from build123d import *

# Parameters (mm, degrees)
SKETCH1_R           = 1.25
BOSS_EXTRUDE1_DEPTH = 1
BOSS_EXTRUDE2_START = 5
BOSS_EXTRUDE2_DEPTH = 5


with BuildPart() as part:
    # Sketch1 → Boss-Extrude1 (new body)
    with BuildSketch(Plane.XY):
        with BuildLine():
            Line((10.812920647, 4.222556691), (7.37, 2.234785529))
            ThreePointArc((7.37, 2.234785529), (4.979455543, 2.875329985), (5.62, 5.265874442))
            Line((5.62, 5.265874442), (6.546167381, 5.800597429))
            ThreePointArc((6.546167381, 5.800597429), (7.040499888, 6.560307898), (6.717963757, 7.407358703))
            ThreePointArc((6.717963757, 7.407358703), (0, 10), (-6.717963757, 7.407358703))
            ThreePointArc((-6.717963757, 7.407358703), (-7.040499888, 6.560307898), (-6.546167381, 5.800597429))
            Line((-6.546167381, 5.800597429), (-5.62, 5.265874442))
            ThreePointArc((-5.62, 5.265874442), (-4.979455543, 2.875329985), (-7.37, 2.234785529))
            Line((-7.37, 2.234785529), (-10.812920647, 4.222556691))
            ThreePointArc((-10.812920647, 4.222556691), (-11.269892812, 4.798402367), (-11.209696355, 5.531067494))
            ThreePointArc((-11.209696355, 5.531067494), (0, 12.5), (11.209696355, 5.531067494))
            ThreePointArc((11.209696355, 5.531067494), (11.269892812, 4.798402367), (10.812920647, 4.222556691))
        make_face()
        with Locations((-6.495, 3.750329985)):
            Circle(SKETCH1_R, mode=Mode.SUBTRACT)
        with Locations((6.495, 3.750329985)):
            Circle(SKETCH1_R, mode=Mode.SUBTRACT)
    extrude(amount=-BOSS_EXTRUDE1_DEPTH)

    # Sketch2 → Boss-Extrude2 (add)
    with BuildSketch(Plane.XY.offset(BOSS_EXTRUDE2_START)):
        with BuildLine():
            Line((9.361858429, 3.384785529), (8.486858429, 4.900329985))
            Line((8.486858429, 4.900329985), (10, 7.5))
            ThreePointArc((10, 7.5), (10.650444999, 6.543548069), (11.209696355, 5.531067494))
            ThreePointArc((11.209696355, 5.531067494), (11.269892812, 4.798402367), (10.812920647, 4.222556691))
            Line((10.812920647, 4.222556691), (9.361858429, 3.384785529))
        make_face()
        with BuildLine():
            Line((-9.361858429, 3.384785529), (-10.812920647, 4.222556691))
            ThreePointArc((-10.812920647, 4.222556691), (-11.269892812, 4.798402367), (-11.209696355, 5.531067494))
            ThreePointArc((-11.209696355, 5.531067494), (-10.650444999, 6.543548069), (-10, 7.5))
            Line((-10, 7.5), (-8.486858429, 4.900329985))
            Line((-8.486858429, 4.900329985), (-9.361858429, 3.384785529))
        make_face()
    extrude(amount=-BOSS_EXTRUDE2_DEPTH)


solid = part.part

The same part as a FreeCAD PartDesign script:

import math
import FreeCAD as App
import Part
import Sketcher
from FreeCAD import Vector
Q = App.Units.Quantity

doc = App.newDocument("Part")
body = doc.addObject("PartDesign::Body", "Body")

sketch1 = body.newObject("Sketcher::SketchObject", "Sketch")
sketch1.AttachmentSupport = (doc.getObject("XY_Plane"), [""])
sketch1.MapMode = "FlatFace"
sketch1.addGeometry(Part.LineSegment(Vector(7.4, 2.2, 0), Vector(10.8, 4.2, 0)), False)
sketch1.addGeometry(Part.ArcOfCircle(Part.Circle(Vector(10.3, 5.1, 0), Vector(0, 0, 1), 1), math.radians(-60), math.radians(26)), False)
sketch1.addGeometry(Part.ArcOfCircle(Part.Circle(Vector(0, 0, 0), Vector(0, 0, 1), 12.5), math.radians(26), math.radians(154)), False)
sketch1.addGeometry(Part.ArcOfCircle(Part.Circle(Vector(-10.3, 5.1, 0), Vector(0, 0, 1), 1), math.radians(154), math.radians(240)), False)
sketch1.addGeometry(Part.LineSegment(Vector(-10.8, 4.2, 0), Vector(-7.4, 2.2, 0)), False)
sketch1.addGeometry(Part.ArcOfCircle(Part.Circle(Vector(-6.5, 3.8, 0), Vector(0, 0, 1), 1.8), math.radians(-120), math.radians(60)), False)
sketch1.addGeometry(Part.LineSegment(Vector(-5.6, 5.3, 0), Vector(-6.5, 5.8, 0)), False)
sketch1.addGeometry(Part.ArcOfCircle(Part.Circle(Vector(-6, 6.7, 0), Vector(0, 0, 1), 1), math.radians(132), math.radians(240)), False)
sketch1.addGeometry(Part.ArcOfCircle(Part.Circle(Vector(0, 0, 0), Vector(0, 0, 1), 10), math.radians(48), math.radians(132)), False)
sketch1.addGeometry(Part.ArcOfCircle(Part.Circle(Vector(6, 6.7, 0), Vector(0, 0, 1), 1), math.radians(-60), math.radians(48)), False)
sketch1.addGeometry(Part.LineSegment(Vector(6.5, 5.8, 0), Vector(5.6, 5.3, 0)), False)
sketch1.addGeometry(Part.ArcOfCircle(Part.Circle(Vector(6.5, 3.8, 0), Vector(0, 0, 1), 1.8), math.radians(120), math.radians(300)), False)
sketch1.addGeometry(Part.Circle(Vector(6.5, 3.8, 0), Vector(0, 0, 1), 1.2), False)
sketch1.addGeometry(Part.Circle(Vector(-6.5, 3.8, 0), Vector(0, 0, 1), 1.2), False)
sketch1.addConstraint(Sketcher.Constraint("Tangent", 0, 2, 1, 1))
sketch1.addConstraint(Sketcher.Constraint("Tangent", 1, 2, 2, 1))
sketch1.addConstraint(Sketcher.Constraint("Tangent", 2, 2, 3, 1))
sketch1.addConstraint(Sketcher.Constraint("Tangent", 3, 2, 4, 1))
sketch1.addConstraint(Sketcher.Constraint("Tangent", 4, 2, 5, 1))
sketch1.addConstraint(Sketcher.Constraint("Tangent", 5, 2, 6, 1))
sketch1.addConstraint(Sketcher.Constraint("Tangent", 6, 2, 7, 2))
sketch1.addConstraint(Sketcher.Constraint("Tangent", 7, 1, 8, 2))
sketch1.addConstraint(Sketcher.Constraint("Tangent", 8, 1, 9, 2))
sketch1.addConstraint(Sketcher.Constraint("Tangent", 9, 1, 10, 1))
sketch1.addConstraint(Sketcher.Constraint("Tangent", 10, 2, 11, 1))
sketch1.addConstraint(Sketcher.Constraint("Tangent", 11, 2, 0, 1))
sketch1.addConstraint(Sketcher.Constraint("Coincident", 2, 3, -1, 1))
sketch1.addConstraint(Sketcher.Constraint("Coincident", 8, 3, -1, 1))
sketch1.addConstraint(Sketcher.Constraint("Coincident", 12, 3, 11, 3))
sketch1.addConstraint(Sketcher.Constraint("Coincident", 13, 3, 5, 3))
sketch1.addConstraint(Sketcher.Constraint("Equal", 1, 3))
sketch1.addConstraint(Sketcher.Constraint("Equal", 3, 7))
sketch1.addConstraint(Sketcher.Constraint("Equal", 7, 9))
sketch1.addConstraint(Sketcher.Constraint("Equal", 5, 11))
sketch1.addConstraint(Sketcher.Constraint("Equal", 12, 13))
sketch1.addConstraint(Sketcher.Constraint("Symmetric", 5, 3, 11, 3, -2))
sketch1.addConstraint(Sketcher.Constraint("Parallel", 4, 6))
sketch1.addConstraint(Sketcher.Constraint("Parallel", 0, 10))
sketch1.addConstraint(Sketcher.Constraint("Horizontal", 1, 3, 3, 3))
sketch1.addConstraint(Sketcher.Constraint("Radius", 1, Q("1 mm")))
sketch1.addConstraint(Sketcher.Constraint("Radius", 8, Q("10 mm")))
sketch1.addConstraint(Sketcher.Constraint("Diameter", 12, Q("2.5 mm")))
sketch1.addConstraint(Sketcher.Constraint("Radius", 2, Q("12.5 mm")))
sketch1.addConstraint(Sketcher.Constraint("Angle", 0, Q("30 deg")))
sketch1.addConstraint(Sketcher.Constraint("Radius", 5, Q("1.75 mm")))
sketch1.addConstraint(Sketcher.Constraint("DistanceX", 4, 2, -1, 1, Q("7.37 mm")))
sketch1.addConstraint(Sketcher.Constraint("DistanceX", -1, 1, 1, 3, Q("10.312921 mm")))
pad1 = body.newObject("PartDesign::Pad", "Pad")
pad1.Profile = sketch1
pad1.Length = 1
pad1.Reversed = True

sketch2 = body.newObject("Sketcher::SketchObject", "Sketch001")
sketch2.AttachmentSupport = (doc.getObject("XY_Plane"), [""])
sketch2.MapMode = "FlatFace"
sketch2.AttachmentOffset = App.Placement(Vector(0, 0, 5), App.Rotation())
sketch2.addGeometry(Part.LineSegment(Vector(8.5, 4.9, 0), Vector(9.4, 3.4, 0)), False)
sketch2.addGeometry(Part.LineSegment(Vector(9.4, 3.4, 0), Vector(10.8, 4.2, 0)), False)
sketch2.addGeometry(Part.ArcOfCircle(Part.Circle(Vector(10.3, 5.1, 0), Vector(0, 0, 1), 1), math.radians(-60), math.radians(26)), False)
sketch2.addGeometry(Part.ArcOfCircle(Part.Circle(Vector(0, 0, 0), Vector(0, 0, 1), 12.5), math.radians(26.26), math.radians(36.87)), False)
sketch2.addGeometry(Part.LineSegment(Vector(10, 7.5, 0), Vector(8.5, 4.9, 0)), False)
sketch2.addGeometry(Part.LineSegment(Vector(-10.8, 4.2, 0), Vector(-9.4, 3.4, 0)), False)
sketch2.addGeometry(Part.LineSegment(Vector(-9.4, 3.4, 0), Vector(-8.5, 4.9, 0)), False)
sketch2.addGeometry(Part.LineSegment(Vector(-8.5, 4.9, 0), Vector(-10, 7.5, 0)), False)
sketch2.addGeometry(Part.ArcOfCircle(Part.Circle(Vector(0, 0, 0), Vector(0, 0, 1), 12.5), math.radians(143.13), math.radians(153.74)), False)
sketch2.addGeometry(Part.ArcOfCircle(Part.Circle(Vector(-10.3, 5.1, 0), Vector(0, 0, 1), 1), math.radians(154), math.radians(240)), False)
sketch2.addConstraint(Sketcher.Constraint("Coincident", 0, 2, 1, 1))
sketch2.addConstraint(Sketcher.Constraint("Tangent", 1, 2, 2, 1))
sketch2.addConstraint(Sketcher.Constraint("Tangent", 2, 2, 3, 1))
sketch2.addConstraint(Sketcher.Constraint("Coincident", 3, 2, 4, 1))
sketch2.addConstraint(Sketcher.Constraint("Coincident", 4, 2, 0, 1))
sketch2.addConstraint(Sketcher.Constraint("Coincident", 5, 2, 6, 1))
sketch2.addConstraint(Sketcher.Constraint("Coincident", 6, 2, 7, 1))
sketch2.addConstraint(Sketcher.Constraint("Coincident", 7, 2, 8, 1))
sketch2.addConstraint(Sketcher.Constraint("Tangent", 8, 2, 9, 1))
sketch2.addConstraint(Sketcher.Constraint("Tangent", 9, 2, 5, 1))
sketch2.addConstraint(Sketcher.Constraint("Coincident", 3, 3, -1, 1))
sketch2.addConstraint(Sketcher.Constraint("Coincident", 8, 3, -1, 1))
sketch2.addConstraint(Sketcher.Constraint("Equal", 3, 8))
sketch2.addConstraint(Sketcher.Constraint("Equal", 2, 9))
sketch2.addConstraint(Sketcher.Constraint("Symmetric", 0, 2, 5, 2, -2))
sketch2.addConstraint(Sketcher.Constraint("Symmetric", 4, 2, 6, 2, -2))
sketch2.addConstraint(Sketcher.Constraint("Perpendicular", 0, 1))
sketch2.addConstraint(Sketcher.Constraint("Perpendicular", 5, 6))
sketch2.addConstraint(Sketcher.Constraint("Horizontal", 3, 2, 7, 2))
sketch2.addConstraint(Sketcher.Constraint("Radius", 2, Q("1 mm")))
sketch2.addConstraint(Sketcher.Constraint("Radius", 3, Q("12.5 mm")))
sketch2.addConstraint(Sketcher.Constraint("Angle", 0, Q("-60 deg")))
sketch2.addConstraint(Sketcher.Constraint("DistanceX", -1, 1, 3, 2, Q("10 mm")))
sketch2.addConstraint(Sketcher.Constraint("Distance", 0, Q("1.75 mm")))
sketch2.addConstraint(Sketcher.Constraint("Distance", 4, Q("3.00797 mm")))
sketch2.addConstraint(Sketcher.Constraint("DistanceX", -1, 1, 2, 3, Q("10.312921 mm")))
pad2 = body.newObject("PartDesign::Pad", "Pad001")
pad2.Profile = sketch2
pad2.Length = 5
pad2.Reversed = True

doc.recompute()
